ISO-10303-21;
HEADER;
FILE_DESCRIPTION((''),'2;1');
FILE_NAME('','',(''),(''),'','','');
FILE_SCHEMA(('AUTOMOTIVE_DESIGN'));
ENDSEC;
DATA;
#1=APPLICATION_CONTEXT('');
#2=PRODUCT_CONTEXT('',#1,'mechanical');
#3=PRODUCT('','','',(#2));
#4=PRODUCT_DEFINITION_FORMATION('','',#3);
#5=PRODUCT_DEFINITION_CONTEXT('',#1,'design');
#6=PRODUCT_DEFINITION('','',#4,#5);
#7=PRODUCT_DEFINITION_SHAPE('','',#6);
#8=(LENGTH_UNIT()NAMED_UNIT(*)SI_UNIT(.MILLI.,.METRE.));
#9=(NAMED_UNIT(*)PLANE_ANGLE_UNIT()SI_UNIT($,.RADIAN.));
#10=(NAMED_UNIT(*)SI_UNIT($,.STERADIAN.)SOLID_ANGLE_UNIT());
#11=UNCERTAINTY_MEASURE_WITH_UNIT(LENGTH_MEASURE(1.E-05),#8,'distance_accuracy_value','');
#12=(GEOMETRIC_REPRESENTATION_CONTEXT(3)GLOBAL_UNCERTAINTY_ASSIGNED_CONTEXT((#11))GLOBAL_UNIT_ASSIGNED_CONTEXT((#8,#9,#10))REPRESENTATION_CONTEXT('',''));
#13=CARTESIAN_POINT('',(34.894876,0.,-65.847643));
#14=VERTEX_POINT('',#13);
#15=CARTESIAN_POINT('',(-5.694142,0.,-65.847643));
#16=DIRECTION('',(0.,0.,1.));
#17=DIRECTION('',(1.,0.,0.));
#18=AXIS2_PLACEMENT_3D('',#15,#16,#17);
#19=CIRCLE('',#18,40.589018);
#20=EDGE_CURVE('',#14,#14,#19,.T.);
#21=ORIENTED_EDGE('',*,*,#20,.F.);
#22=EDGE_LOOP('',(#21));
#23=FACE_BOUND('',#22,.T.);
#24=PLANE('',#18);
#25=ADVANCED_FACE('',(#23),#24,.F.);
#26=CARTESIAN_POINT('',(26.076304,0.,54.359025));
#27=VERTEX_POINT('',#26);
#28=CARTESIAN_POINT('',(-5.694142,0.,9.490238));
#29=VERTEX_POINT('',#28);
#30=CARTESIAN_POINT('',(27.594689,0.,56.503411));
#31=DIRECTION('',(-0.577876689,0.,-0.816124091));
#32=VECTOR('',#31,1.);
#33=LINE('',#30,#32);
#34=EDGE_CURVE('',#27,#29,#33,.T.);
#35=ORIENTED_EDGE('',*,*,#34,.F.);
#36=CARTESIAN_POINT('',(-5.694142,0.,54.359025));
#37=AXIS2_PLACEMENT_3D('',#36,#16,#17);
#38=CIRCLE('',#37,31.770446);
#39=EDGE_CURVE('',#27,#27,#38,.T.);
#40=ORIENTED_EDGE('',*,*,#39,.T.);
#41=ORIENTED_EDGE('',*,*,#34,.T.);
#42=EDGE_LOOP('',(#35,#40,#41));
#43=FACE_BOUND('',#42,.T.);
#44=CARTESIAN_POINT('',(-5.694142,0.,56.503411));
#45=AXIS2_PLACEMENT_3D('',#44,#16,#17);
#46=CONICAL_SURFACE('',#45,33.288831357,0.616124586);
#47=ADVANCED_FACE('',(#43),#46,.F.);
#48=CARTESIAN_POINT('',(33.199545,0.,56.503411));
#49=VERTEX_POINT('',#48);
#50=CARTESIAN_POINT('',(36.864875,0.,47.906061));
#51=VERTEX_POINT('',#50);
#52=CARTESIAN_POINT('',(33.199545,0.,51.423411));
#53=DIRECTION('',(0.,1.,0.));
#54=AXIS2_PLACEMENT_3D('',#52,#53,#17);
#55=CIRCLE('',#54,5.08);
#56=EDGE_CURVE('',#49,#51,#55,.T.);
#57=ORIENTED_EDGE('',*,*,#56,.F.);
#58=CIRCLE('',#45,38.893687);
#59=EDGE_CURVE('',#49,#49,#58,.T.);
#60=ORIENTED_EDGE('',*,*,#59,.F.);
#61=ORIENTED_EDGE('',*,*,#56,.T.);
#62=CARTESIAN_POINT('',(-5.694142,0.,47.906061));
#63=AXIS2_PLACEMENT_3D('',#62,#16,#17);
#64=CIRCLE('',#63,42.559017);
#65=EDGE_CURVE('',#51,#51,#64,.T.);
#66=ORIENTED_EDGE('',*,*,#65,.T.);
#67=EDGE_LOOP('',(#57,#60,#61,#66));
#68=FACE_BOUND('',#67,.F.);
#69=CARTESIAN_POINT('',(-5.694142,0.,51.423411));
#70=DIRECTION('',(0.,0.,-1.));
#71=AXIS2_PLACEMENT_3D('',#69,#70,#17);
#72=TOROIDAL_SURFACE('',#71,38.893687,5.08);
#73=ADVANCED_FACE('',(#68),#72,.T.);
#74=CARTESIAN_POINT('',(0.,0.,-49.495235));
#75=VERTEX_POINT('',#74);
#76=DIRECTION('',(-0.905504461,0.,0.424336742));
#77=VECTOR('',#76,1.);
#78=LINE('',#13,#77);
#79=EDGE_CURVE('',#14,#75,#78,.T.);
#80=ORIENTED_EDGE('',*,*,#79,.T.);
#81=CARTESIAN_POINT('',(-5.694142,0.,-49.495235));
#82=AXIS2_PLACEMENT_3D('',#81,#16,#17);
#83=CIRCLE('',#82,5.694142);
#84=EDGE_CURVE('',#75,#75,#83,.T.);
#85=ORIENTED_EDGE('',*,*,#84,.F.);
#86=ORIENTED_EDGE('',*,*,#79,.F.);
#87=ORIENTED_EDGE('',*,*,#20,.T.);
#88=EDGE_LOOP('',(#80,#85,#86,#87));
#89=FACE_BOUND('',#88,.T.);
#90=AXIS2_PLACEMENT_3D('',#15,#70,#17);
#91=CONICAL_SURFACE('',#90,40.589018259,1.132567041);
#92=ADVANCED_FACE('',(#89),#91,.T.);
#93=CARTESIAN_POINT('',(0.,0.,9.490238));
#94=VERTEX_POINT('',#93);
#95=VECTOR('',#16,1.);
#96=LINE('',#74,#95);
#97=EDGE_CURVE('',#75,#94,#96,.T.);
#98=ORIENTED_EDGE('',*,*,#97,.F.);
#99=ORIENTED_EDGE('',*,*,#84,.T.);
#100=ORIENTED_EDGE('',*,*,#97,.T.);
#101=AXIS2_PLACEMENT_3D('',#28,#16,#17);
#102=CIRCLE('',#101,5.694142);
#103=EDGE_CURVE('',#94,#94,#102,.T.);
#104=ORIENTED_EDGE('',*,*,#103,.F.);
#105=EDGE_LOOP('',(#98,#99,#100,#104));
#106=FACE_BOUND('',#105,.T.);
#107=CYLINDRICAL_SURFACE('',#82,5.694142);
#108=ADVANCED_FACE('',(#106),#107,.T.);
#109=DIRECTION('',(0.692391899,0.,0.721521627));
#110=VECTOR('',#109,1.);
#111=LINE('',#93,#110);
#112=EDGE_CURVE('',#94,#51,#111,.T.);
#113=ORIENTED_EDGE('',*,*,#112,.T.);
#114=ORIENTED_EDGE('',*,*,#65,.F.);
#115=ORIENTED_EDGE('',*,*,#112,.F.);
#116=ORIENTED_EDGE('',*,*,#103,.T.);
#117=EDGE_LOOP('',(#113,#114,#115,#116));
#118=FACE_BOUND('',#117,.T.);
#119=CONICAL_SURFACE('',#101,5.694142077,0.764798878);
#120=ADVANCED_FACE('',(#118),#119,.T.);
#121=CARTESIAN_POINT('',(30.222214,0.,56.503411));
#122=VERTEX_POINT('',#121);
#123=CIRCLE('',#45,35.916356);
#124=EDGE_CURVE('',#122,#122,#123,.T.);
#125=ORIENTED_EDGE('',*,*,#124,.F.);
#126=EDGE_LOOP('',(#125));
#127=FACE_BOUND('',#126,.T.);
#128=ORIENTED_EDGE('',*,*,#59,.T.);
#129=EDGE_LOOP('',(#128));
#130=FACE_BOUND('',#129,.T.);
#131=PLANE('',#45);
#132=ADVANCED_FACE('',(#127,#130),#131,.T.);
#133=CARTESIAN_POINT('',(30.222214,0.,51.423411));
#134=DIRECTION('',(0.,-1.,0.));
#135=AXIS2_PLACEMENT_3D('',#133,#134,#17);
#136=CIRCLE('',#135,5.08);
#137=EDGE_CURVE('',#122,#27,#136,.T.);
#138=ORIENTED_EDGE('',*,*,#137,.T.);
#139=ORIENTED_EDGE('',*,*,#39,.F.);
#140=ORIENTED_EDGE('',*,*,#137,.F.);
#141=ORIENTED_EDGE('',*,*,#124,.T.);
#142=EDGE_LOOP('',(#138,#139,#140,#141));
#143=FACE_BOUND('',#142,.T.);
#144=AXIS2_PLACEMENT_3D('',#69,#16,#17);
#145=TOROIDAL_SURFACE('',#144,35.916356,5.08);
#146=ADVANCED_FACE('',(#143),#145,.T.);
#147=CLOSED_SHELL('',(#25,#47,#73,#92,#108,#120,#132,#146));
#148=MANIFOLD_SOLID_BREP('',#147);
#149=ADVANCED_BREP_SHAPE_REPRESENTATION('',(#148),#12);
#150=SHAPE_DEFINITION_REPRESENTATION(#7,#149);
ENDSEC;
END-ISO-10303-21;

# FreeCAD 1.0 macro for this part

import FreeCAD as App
import Part
import Sketcher

V = App.Vector
Q = App.Units.Quantity


def edges_at(feature, points):
    """Names of the edges that pass closest to the given points."""
    edges = feature.Shape.Edges
    near = lambda p: min(range(len(edges)), key=lambda i: edges[i].distToShape(Part.Vertex(*p))[0])
    return sorted({f"Edge{near(p) + 1}" for p in points})

doc = App.newDocument("Part")
body = doc.addObject("PartDesign::Body", "Body")

# Sketch on XZ plane
sketch1 = doc.addObject("Sketcher::SketchObject", "Sketch")
body.addObject(sketch1)
sketch1.AttachmentSupport = (doc.XZ_Plane, [""])
sketch1.MapMode = "FlatFace"
sketch1.addGeometry(Part.LineSegment(V(45, 57, 0), V(28, 57, 0)), False)
sketch1.addGeometry(Part.LineSegment(V(28, 57, 0), V(-6, 9, 0)), False)
sketch1.addGeometry(Part.LineSegment(V(-6, 9, 0), V(-6, -66, 0)), False)
sketch1.addGeometry(Part.LineSegment(V(-6, -66, 0), V(35, -66, 0)), False)
sketch1.addGeometry(Part.LineSegment(V(35, -66, 0), V(0, -49, 0)), False)
sketch1.addGeometry(Part.LineSegment(V(0, -49, 0), V(0, 9, 0)), False)
sketch1.addGeometry(Part.LineSegment(V(0, 9, 0), V(45, 57, 0)), False)
sketch1.addGeometry(Part.LineSegment(V(-6, -66, 0), V(-6, 57, 0)), True)  # axis
sketch1.addConstraint(Sketcher.Constraint("Coincident", 0, 2, 1, 1))
sketch1.addConstraint(Sketcher.Constraint("Coincident", 1, 2, 2, 1))
sketch1.addConstraint(Sketcher.Constraint("Coincident", 2, 2, 3, 1))
sketch1.addConstraint(Sketcher.Constraint("Coincident", 3, 2, 4, 1))
sketch1.addConstraint(Sketcher.Constraint("Coincident", 4, 2, 5, 1))
sketch1.addConstraint(Sketcher.Constraint("Coincident", 5, 2, 6, 1))
sketch1.addConstraint(Sketcher.Constraint("Coincident", 6, 2, 0, 1))
sketch1.addConstraint(Sketcher.Constraint("Horizontal", 0))
sketch1.addConstraint(Sketcher.Constraint("Vertical", 2))
sketch1.addConstraint(Sketcher.Constraint("Horizontal", 3))
sketch1.addConstraint(Sketcher.Constraint("Vertical", 5))
sketch1.addConstraint(Sketcher.Constraint("Vertical", 7))
sketch1.addConstraint(Sketcher.Constraint("Coincident", 7, 1, 2, 2))
sketch1.addConstraint(Sketcher.Constraint("PointOnObject", 4, 2, -2))
sketch1.addConstraint(Sketcher.Constraint("Horizontal", 1, 2, 5, 2))
sketch1.addConstraint(Sketcher.Constraint("Horizontal", 6, 2, 7, 2))
sketch1.addConstraint(Sketcher.Constraint("DistanceX", 0, 2, 0, 1, 17.520439))
sketch1.addConstraint(Sketcher.Constraint("DistanceX", 3, 1, 3, 2, 40.589018))
sketch1.addConstraint(Sketcher.Constraint("DistanceY", 2, 2, 2, 1, 75.33788))
sketch1.addConstraint(Sketcher.Constraint("Distance", 6, 65.158371))
sketch1.addConstraint(Sketcher.Constraint("DistanceY", 5, 1, 5, 2, 58.985473))
sketch1.addConstraint(Sketcher.Constraint("DistanceY", 7, 1, 7, 2, 122.351054))
sketch1.addConstraint(Sketcher.Constraint("DistanceY", -1, 1, 0, 2, 56.503411))
sketch1.addConstraint(Sketcher.Constraint("DistanceX", 1, 2, 0, 2, 33.288831))
revolution = doc.addObject("PartDesign::Revolution", "Revolution")
body.addObject(revolution)
revolution.Profile = sketch1
revolution.ReferenceAxis = (sketch1, ["Axis0"])
revolution.Angle = 360
doc.recompute()

fillet = doc.addObject("PartDesign::Fillet", "Fillet")
body.addObject(fillet)
fillet.Base = (revolution, edges_at(revolution, [(-56.503, 0, 56.503)]))
fillet.Radius = Q("0.2 in")
doc.recompute()

fillet2 = doc.addObject("PartDesign::Fillet", "Fillet001")
body.addObject(fillet2)
fillet2.Base = (fillet, edges_at(fillet, [(-38.983, 0, 56.503)]))
fillet2.Radius = Q("0.2 in")

doc.recompute()
